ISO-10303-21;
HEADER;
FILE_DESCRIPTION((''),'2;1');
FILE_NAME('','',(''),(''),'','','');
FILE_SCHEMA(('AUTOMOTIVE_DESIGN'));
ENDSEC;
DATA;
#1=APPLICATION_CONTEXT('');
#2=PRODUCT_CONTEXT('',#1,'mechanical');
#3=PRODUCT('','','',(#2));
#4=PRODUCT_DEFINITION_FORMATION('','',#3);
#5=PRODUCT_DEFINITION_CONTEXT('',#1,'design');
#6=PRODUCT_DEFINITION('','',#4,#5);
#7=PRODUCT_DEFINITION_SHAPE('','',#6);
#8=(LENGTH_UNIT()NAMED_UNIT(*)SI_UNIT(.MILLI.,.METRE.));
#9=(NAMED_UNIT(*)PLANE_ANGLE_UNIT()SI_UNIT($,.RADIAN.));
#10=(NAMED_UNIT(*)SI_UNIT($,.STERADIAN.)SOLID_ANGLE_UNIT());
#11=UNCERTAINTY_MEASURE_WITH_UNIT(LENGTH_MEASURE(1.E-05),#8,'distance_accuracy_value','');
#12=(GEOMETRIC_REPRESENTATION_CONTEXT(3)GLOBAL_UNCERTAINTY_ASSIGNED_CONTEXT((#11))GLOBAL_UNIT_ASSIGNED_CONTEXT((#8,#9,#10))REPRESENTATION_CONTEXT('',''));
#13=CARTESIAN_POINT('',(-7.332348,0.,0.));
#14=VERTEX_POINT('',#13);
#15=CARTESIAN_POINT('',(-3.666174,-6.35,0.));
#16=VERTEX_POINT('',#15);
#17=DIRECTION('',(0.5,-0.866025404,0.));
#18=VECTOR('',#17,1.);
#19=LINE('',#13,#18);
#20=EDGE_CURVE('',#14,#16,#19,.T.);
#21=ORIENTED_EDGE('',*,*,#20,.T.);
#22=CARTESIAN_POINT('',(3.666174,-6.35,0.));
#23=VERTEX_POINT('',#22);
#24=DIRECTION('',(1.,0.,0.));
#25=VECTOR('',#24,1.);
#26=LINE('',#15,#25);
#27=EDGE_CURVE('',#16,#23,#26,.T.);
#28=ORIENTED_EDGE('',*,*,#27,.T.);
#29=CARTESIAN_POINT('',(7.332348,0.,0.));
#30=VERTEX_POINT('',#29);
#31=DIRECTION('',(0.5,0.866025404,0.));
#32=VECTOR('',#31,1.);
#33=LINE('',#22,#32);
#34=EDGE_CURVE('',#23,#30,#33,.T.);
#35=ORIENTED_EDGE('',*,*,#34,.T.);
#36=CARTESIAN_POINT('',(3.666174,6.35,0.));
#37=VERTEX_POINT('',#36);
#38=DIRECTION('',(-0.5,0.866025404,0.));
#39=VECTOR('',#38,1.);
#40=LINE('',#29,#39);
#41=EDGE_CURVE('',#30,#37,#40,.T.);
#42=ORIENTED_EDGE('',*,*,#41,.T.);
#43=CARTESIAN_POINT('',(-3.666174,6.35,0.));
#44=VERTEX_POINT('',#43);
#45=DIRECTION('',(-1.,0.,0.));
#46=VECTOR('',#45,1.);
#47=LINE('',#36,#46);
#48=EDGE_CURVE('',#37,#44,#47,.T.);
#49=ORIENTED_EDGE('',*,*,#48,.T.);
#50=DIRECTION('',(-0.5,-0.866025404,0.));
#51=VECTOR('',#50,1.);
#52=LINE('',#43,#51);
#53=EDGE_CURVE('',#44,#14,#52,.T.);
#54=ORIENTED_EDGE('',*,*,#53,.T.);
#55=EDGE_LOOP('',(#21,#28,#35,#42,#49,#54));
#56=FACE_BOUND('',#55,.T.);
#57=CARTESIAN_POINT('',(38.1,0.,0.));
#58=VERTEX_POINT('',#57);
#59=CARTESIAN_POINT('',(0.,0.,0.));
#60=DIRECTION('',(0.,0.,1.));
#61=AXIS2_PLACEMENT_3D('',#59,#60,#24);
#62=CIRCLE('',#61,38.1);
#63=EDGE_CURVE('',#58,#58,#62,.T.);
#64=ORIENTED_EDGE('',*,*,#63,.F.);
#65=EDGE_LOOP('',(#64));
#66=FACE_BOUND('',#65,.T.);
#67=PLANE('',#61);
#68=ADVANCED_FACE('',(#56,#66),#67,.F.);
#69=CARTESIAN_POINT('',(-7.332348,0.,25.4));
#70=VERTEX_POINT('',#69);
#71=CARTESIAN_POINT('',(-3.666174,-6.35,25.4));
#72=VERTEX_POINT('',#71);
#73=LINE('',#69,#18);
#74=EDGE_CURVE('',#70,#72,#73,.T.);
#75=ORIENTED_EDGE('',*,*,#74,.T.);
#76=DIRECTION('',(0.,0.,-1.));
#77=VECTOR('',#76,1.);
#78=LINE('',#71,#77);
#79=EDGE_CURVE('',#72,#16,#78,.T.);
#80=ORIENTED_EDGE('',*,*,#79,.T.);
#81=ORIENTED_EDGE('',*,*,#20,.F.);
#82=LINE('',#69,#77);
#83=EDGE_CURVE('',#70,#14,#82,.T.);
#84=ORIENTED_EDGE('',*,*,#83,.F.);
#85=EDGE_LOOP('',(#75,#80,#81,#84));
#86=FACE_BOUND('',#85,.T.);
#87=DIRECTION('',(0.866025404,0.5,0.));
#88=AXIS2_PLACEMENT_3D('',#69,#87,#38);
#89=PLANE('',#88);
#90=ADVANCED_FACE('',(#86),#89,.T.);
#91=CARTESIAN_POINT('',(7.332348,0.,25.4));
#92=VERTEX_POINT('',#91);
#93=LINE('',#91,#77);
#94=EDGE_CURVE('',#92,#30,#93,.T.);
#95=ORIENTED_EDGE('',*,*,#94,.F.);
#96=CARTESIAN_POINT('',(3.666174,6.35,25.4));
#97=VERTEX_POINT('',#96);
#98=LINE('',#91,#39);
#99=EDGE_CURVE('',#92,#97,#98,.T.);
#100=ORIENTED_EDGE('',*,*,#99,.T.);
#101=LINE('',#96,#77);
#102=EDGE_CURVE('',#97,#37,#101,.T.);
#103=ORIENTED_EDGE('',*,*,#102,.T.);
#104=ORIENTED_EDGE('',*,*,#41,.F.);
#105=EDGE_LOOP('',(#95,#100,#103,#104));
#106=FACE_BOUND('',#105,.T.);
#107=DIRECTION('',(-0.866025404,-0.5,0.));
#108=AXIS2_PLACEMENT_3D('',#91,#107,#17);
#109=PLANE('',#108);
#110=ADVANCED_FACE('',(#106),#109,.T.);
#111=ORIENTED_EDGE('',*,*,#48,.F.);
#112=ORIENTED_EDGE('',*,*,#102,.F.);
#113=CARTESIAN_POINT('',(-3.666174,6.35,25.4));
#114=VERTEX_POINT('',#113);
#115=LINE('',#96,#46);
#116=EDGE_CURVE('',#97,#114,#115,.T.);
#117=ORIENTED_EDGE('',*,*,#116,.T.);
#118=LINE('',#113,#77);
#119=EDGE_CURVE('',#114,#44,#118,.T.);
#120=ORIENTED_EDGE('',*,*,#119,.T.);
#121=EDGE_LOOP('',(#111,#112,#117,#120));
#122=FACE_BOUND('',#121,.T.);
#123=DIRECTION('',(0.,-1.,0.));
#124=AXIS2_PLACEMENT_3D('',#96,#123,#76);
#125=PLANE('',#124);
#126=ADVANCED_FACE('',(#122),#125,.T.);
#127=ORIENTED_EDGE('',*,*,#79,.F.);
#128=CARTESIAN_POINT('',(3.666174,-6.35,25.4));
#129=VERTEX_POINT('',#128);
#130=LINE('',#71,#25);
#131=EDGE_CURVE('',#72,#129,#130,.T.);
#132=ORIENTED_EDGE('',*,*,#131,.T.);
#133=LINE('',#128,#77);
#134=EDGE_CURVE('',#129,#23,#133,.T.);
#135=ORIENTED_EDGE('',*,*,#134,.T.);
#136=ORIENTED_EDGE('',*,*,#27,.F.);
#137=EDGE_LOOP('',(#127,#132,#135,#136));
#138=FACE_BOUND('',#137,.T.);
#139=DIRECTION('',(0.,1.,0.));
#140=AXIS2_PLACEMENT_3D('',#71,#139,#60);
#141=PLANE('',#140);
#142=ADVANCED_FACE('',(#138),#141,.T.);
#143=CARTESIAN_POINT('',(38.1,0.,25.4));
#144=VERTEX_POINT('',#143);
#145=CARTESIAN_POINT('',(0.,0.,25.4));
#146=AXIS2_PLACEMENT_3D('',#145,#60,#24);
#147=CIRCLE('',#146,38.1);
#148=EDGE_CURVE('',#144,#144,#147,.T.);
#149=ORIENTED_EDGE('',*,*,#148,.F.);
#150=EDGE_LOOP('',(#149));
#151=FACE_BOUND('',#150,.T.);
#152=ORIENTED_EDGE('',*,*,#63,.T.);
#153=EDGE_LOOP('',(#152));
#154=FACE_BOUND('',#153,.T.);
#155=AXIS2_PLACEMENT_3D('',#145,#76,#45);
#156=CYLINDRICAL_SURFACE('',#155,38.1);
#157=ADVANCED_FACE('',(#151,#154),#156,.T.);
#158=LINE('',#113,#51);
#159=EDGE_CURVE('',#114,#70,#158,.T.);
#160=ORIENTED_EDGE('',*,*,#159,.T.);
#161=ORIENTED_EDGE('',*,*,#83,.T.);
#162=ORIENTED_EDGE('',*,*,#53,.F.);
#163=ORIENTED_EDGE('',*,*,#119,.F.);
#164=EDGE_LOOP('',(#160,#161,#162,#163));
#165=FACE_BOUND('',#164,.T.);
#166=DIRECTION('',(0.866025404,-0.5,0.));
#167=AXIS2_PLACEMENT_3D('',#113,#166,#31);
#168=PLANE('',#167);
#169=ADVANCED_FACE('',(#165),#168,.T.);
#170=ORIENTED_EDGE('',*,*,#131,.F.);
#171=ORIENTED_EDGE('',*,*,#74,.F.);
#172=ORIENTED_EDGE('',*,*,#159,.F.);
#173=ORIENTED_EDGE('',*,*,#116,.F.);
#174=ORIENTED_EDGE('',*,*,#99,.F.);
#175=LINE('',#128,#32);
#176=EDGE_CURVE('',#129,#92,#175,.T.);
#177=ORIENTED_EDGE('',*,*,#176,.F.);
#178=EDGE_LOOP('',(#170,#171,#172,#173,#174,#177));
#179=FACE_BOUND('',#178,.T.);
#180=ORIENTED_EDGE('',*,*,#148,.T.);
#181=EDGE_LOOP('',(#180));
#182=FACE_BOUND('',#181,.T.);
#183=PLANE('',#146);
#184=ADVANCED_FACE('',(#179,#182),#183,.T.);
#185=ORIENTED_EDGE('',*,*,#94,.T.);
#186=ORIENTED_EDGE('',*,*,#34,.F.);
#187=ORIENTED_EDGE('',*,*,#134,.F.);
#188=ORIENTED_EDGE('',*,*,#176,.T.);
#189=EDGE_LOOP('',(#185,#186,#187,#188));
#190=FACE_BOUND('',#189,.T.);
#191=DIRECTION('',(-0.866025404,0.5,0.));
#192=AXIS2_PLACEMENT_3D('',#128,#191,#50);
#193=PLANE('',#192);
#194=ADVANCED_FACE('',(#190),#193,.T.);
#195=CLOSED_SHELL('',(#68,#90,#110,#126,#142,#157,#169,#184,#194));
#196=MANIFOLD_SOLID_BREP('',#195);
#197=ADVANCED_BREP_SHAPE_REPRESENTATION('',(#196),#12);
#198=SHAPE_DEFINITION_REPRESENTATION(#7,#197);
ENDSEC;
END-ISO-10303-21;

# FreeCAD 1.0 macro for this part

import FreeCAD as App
import Part
import Sketcher
from FreeCAD import Vector
Q = App.Units.Quantity


def add_polygon(sketch, points):
    """Adds a closed chain of lines whose ends are joined by coincident constraints."""
    first, n = sketch.GeometryCount, len(points)
    for a, b in zip(points, points[1:] + points[:1]):
        sketch.addGeometry(Part.LineSegment(App.Vector(*a, 0), App.Vector(*b, 0)), False)
    for i in range(n):
        sketch.addConstraint(Sketcher.Constraint("Coincident", first + i, 2, first + (i + 1) % n, 1))

doc = App.newDocument("Part")
body = doc.addObject("PartDesign::Body", "Body")

# Sketch on XY plane
sketch1 = body.newObject("Sketcher::SketchObject", "Sketch")
sketch1.AttachmentSupport = (doc.getObject("XY_Plane"), [""])
sketch1.MapMode = "FlatFace"
sketch1.addGeometry(Part.Circle(Vector(0, 0, 0), Vector(0, 0, 1), 38), False)  # 0
add_polygon(sketch1, [(-7, 0), (-4, 6), (4, 6), (7, 0), (4, -6), (-4, -6)])  # lines 1-6
sketch1.addConstraint(Sketcher.Constraint("Horizontal", 2))
sketch1.addConstraint(Sketcher.Constraint("Horizontal", 5))
sketch1.addConstraint(Sketcher.Constraint("Coincident", 0, 3, -1, 1))
sketch1.addConstraint(Sketcher.Constraint("Symmetric", 1, 2, 4, 2, -1, 1))
sketch1.addConstraint(Sketcher.Constraint("Symmetric", 3, 2, 6, 2, -1, 1))
sketch1.addConstraint(Sketcher.Constraint("PointOnObject", 3, 2, -1))
sketch1.addConstraint(Sketcher.Constraint("Parallel", 3, 6))
sketch1.addConstraint(Sketcher.Constraint("Vertical", 2, 2, 4, 2))
sketch1.addConstraint(Sketcher.Constraint("Diameter", 0, Q("3 in")))
sketch1.addConstraint(Sketcher.Constraint("Angle", 1, Q("60 deg")))
sketch1.addConstraint(Sketcher.Constraint("DistanceY", 4, 2, 2, 2, Q("0.5 in")))
sketch1.addConstraint(Sketcher.Constraint("DistanceX", 2, 1, 2, 2, Q("7.332348 mm")))
pad1 = body.newObject("PartDesign::Pad", "Pad")
pad1.Profile = sketch1
pad1.Length = Q("1 in")

doc.recompute()
